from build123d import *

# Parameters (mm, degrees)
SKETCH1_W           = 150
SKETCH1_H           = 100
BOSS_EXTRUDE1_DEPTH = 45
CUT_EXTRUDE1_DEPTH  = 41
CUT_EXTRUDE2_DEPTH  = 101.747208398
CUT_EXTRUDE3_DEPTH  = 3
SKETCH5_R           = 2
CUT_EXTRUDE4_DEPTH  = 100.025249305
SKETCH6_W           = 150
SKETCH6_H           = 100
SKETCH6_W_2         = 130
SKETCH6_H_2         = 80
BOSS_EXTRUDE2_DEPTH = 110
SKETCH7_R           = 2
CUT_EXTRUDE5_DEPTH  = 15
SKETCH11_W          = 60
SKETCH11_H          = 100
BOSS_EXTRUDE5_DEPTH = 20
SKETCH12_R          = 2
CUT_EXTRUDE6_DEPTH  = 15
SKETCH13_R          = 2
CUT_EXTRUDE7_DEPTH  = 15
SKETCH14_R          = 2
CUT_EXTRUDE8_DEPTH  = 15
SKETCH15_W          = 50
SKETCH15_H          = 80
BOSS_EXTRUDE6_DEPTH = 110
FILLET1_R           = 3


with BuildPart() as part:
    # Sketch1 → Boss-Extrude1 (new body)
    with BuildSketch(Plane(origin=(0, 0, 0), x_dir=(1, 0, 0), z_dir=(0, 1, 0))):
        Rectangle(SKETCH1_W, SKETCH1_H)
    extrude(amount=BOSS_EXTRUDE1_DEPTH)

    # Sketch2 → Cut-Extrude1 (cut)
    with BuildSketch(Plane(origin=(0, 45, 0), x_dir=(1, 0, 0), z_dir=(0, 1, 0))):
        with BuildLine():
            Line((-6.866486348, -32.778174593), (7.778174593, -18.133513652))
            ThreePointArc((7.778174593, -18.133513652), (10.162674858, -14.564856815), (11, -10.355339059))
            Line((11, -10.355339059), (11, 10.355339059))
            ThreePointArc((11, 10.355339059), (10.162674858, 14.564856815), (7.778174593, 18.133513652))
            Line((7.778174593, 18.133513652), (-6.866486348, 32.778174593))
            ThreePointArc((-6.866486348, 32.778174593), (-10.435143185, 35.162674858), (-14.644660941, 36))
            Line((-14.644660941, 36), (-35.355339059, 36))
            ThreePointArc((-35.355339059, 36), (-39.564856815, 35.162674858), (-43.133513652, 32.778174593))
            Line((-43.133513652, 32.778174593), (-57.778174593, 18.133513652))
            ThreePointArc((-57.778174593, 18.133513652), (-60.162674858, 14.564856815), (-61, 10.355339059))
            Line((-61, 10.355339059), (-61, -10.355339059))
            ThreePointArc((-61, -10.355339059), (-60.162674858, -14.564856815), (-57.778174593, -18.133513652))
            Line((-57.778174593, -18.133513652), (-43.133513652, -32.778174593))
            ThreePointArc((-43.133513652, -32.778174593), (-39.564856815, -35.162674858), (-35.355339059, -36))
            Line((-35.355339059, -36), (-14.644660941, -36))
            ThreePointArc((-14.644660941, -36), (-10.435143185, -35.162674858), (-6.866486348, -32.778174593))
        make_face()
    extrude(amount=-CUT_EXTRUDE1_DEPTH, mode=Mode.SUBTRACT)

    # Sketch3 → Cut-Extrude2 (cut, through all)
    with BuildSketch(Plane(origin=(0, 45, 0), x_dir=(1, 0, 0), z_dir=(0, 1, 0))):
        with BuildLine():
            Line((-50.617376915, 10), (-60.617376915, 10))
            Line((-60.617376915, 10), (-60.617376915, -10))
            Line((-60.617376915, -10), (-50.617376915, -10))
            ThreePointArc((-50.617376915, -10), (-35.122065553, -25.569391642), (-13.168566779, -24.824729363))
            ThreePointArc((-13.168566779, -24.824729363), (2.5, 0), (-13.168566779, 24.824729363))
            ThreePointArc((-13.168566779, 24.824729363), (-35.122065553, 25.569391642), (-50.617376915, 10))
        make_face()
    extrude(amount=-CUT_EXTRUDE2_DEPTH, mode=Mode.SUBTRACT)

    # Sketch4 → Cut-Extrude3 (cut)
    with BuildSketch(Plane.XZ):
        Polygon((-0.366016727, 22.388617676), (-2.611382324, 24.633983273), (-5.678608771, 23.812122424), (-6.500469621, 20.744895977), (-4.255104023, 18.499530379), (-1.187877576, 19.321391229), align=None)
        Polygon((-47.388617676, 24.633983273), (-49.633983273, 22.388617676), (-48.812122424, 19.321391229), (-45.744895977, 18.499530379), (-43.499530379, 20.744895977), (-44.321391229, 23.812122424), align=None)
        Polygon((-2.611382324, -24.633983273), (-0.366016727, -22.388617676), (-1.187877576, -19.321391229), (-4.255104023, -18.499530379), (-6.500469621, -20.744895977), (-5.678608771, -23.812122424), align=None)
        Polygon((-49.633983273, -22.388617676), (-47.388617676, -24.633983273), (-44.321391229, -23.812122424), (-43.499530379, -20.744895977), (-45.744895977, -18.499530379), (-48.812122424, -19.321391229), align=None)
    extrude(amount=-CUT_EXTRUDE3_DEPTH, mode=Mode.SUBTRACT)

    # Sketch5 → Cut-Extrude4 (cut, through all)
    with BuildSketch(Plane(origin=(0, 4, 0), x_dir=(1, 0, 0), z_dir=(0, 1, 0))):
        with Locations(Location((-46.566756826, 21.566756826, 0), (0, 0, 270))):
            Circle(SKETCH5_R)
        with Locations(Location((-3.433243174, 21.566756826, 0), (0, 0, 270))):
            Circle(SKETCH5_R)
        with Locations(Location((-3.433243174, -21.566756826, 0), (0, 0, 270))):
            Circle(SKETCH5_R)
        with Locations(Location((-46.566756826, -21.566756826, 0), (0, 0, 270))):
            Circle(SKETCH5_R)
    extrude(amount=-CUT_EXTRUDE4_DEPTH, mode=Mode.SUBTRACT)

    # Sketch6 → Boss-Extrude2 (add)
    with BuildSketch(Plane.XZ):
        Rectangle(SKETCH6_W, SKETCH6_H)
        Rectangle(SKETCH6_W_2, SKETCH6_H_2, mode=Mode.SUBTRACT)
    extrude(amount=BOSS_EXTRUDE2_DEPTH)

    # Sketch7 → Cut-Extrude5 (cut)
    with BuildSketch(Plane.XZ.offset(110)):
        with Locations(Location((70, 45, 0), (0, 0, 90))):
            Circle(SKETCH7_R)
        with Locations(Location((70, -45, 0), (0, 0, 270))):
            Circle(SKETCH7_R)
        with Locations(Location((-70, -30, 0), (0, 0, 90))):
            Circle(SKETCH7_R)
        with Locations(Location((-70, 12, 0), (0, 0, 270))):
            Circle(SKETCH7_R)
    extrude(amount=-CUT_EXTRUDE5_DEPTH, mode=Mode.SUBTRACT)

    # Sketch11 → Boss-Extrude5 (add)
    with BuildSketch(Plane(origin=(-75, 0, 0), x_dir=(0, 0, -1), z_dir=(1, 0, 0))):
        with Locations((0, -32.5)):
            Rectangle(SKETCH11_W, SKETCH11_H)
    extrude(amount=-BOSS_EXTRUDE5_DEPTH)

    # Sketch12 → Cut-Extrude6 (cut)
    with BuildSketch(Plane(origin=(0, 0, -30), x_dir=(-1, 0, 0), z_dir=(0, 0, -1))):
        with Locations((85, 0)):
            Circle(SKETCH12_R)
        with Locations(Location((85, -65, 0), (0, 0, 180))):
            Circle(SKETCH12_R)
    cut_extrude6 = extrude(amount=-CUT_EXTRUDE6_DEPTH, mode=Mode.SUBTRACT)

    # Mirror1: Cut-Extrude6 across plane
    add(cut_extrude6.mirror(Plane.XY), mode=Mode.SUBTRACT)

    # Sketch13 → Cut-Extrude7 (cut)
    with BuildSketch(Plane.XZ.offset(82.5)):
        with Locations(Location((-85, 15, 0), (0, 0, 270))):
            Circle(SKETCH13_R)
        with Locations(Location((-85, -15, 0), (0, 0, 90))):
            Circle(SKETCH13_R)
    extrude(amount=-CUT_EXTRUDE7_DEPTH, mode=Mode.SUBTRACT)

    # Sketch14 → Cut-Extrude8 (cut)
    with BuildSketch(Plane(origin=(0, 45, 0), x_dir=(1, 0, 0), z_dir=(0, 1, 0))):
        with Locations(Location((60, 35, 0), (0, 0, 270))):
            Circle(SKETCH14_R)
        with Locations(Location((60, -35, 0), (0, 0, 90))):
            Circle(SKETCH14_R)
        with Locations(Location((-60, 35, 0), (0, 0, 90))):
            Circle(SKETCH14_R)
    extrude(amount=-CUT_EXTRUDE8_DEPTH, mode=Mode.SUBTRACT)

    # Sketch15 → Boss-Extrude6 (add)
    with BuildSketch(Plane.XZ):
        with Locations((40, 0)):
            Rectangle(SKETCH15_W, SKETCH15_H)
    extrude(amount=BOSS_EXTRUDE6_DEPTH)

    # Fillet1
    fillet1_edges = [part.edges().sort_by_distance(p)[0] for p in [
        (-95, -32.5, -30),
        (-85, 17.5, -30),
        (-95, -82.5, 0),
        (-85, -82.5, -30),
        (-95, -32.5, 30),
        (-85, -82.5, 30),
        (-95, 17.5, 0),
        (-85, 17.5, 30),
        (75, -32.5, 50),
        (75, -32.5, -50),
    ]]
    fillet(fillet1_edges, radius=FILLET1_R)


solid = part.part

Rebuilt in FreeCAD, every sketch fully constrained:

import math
import FreeCAD as App
import Part
import Sketcher

V = App.Vector
Q = App.Units.Quantity


def edges_at(feature, points):
    """Names of the edges that pass closest to the given points."""
    edges = feature.Shape.Edges
    near = lambda p: min(range(len(edges)), key=lambda i: edges[i].distToShape(Part.Vertex(*p))[0])
    return sorted({f"Edge{near(p) + 1}" for p in points})


def add_polygon(sketch, points):
    """Adds a closed chain of lines whose ends are joined by coincident constraints."""
    first, n = sketch.GeometryCount, len(points)
    for a, b in zip(points, points[1:] + points[:1]):
        sketch.addGeometry(Part.LineSegment(App.Vector(*a, 0), App.Vector(*b, 0)), False)
    for i in range(n):
        sketch.addConstraint(Sketcher.Constraint("Coincident", first + i, 2, first + (i + 1) % n, 1))

doc = App.newDocument("Part")
params = doc.addObject("Spreadsheet::Sheet", "Params")
for row, (alias, value) in enumerate([
    ("sketch1_width", "150 mm"),
    ("sketch1_height", "100 mm"),
    ("pad1_length", "45 mm"),
    ("sketch2_radius", "11 mm"),
    ("pocket1_length", "41 mm"),
    ("sketch3_radius", "27.5 mm"),
    ("sketch3_width", "10 mm"),
    ("sketch3_height", "20 mm"),
    ("pocket3_length", "3 mm"),
    ("sketch5_diameter", "4 mm"),
    ("sketch6_width", "150 mm"),
    ("sketch6_width2", "130 mm"),
    ("sketch6_height", "100 mm"),
    ("sketch6_height2", "80 mm"),
    ("pad2_length", "110 mm"),
    ("sketch7_diameter", "4 mm"),
    ("pocket5_length", "15 mm"),
    ("sketch8_width", "100 mm"),
    ("sketch8_height", "60 mm"),
    ("pad3_length", "20 mm"),
    ("sketch9_diameter", "4 mm"),
    ("pocket6_length", "15 mm"),
    ("sketch10_diameter", "4 mm"),
    ("pocket7_length", "15 mm"),
    ("sketch11_diameter", "4 mm"),
    ("pocket8_length", "15 mm"),
    ("sketch12_width", "50 mm"),
    ("sketch12_height", "80 mm"),
    ("pad4_length", "110 mm"),
    ("fillet_radius", "3 mm"),
], start=1):
    params.set(f"A{row}", alias)
    params.set(f"B{row}", "=" + value)
    params.setAlias(f"B{row}", alias)

body = doc.addObject("PartDesign::Body", "Body")

sketch1 = body.newObject("Sketcher::SketchObject", "Sketch")
sketch1.AttachmentSupport = (doc.getObject("XZ_Plane"), [""])
sketch1.MapMode = "FlatFace"
add_polygon(sketch1, [(-75, -50), (-75, 50), (75, 50), (75, -50)])
sketch1.addConstraint([
    Sketcher.Constraint("Vertical", 0),
    Sketcher.Constraint("Horizontal", 1),
    Sketcher.Constraint("Vertical", 2),
    Sketcher.Constraint("Horizontal", 3),
    Sketcher.Constraint("Symmetric", 0, 2, 2, 2, -1, 1),
    Sketcher.Constraint("DistanceX", 1, 1, 1, 2, 150.0),
    Sketcher.Constraint("DistanceY", 0, 1, 0, 2, 100.0),
])
sketch1.setExpression("Constraints[9]", "Params.sketch1_width")
sketch1.setExpression("Constraints[10]", "Params.sketch1_height")
pad1 = body.newObject("PartDesign::Pad", "Pad")
pad1.Profile = sketch1
pad1.setExpression("Length", "Params.pad1_length")
pad1.Reversed = True

sketch2 = body.newObject("Sketcher::SketchObject", "Sketch001")
sketch2.AttachmentSupport = (doc.getObject("XZ_Plane"), [""])
sketch2.MapMode = "FlatFace"
sketch2.AttachmentOffset = App.Placement(V(0, 0, -45), App.Rotation())
sketch2.addGeometry([
    Part.LineSegment(V(-7, 33, 0), V(8, 18, 0)),
    Part.ArcOfCircle(Part.Circle(V(0, 10, 0), V(0, 0, 1), 11), math.radians(0), math.radians(45)),
    Part.LineSegment(V(11, 10, 0), V(11, -10, 0)),
    Part.ArcOfCircle(Part.Circle(V(0, -10, 0), V(0, 0, 1), 11), math.radians(-45), math.radians(0)),
    Part.LineSegment(V(8, -18, 0), V(-7, -33, 0)),
    Part.ArcOfCircle(Part.Circle(V(-15, -25, 0), V(0, 0, 1), 11), math.radians(-90), math.radians(-45)),
    Part.LineSegment(V(-15, -36, 0), V(-35, -36, 0)),
    Part.ArcOfCircle(Part.Circle(V(-35, -25, 0), V(0, 0, 1), 11), math.radians(-135), math.radians(-90)),
    Part.LineSegment(V(-43, -33, 0), V(-58, -18, 0)),
    Part.ArcOfCircle(Part.Circle(V(-50, -10, 0), V(0, 0, 1), 11), math.radians(180), math.radians(225)),
    Part.LineSegment(V(-61, -10, 0), V(-61, 10, 0)),
    Part.ArcOfCircle(Part.Circle(V(-50, 10, 0), V(0, 0, 1), 11), math.radians(135), math.radians(180)),
    Part.LineSegment(V(-58, 18, 0), V(-43, 33, 0)),
    Part.ArcOfCircle(Part.Circle(V(-35, 25, 0), V(0, 0, 1), 11), math.radians(90), math.radians(135)),
    Part.LineSegment(V(-35, 36, 0), V(-15, 36, 0)),
    Part.ArcOfCircle(Part.Circle(V(-15, 25, 0), V(0, 0, 1), 11), math.radians(45), math.radians(90)),
], False)
sketch2.addConstraint([
    Sketcher.Constraint("Tangent", 0, 2, 1, 2),
    Sketcher.Constraint("Tangent", 1, 1, 2, 1),
    Sketcher.Constraint("Tangent", 2, 2, 3, 2),
    Sketcher.Constraint("Tangent", 3, 1, 4, 1),
    Sketcher.Constraint("Tangent", 4, 2, 5, 2),
    Sketcher.Constraint("Tangent", 5, 1, 6, 1),
    Sketcher.Constraint("Tangent", 6, 2, 7, 2),
    Sketcher.Constraint("Tangent", 7, 1, 8, 1),
    Sketcher.Constraint("Tangent", 8, 2, 9, 2),
    Sketcher.Constraint("Tangent", 9, 1, 10, 1),
    Sketcher.Constraint("Tangent", 10, 2, 11, 2),
    Sketcher.Constraint("Tangent", 11, 1, 12, 1),
    Sketcher.Constraint("Tangent", 12, 2, 13, 2),
    Sketcher.Constraint("Tangent", 13, 1, 14, 1),
    Sketcher.Constraint("Tangent", 14, 2, 15, 2),
    Sketcher.Constraint("Tangent", 15, 1, 0, 1),
    Sketcher.Constraint("Vertical", 2),
    Sketcher.Constraint("Horizontal", 6),
    Sketcher.Constraint("Vertical", 10),
    Sketcher.Constraint("Horizontal", 14),
    Sketcher.Constraint("Equal", 1, 3),
    Sketcher.Constraint("Equal", 3, 5),
    Sketcher.Constraint("Equal", 5, 7),
    Sketcher.Constraint("Equal", 7, 9),
    Sketcher.Constraint("Equal", 9, 11),
    Sketcher.Constraint("Equal", 11, 13),
    Sketcher.Constraint("Equal", 13, 15),
    Sketcher.Constraint("Symmetric", 1, 3, 3, 3, -1, 1),
    Sketcher.Constraint("Symmetric", 7, 3, 13, 3, -1),
    Sketcher.Constraint("Perpendicular", 0, 4),
    Sketcher.Constraint("Perpendicular", 4, 8),
    Sketcher.Constraint("Perpendicular", 8, 12),
    Sketcher.Constraint("Horizontal", 3, 3, 9, 3),
    Sketcher.Constraint("Horizontal", 1, 3, 11, 3),
    Sketcher.Constraint("Equal", 14, 2),
    Sketcher.Constraint("Radius", 1, 11.0),
    Sketcher.Constraint("DistanceY", 5, 3, -1, 1, 25.0),
    Sketcher.Constraint("DistanceX", 6, 2, 6, 1, 20.710678),
])
sketch2.setExpression("Constraints[35]", "Params.sketch2_radius")
pocket1 = body.newObject("PartDesign::Pocket", "Pocket")
pocket1.Profile = sketch2
pocket1.setExpression("Length", "Params.pocket1_length")
pocket1.Reversed = True

sketch3 = body.newObject("Sketcher::SketchObject", "Sketch002")
sketch3.AttachmentSupport = (doc.getObject("XZ_Plane"), [""])
sketch3.MapMode = "FlatFace"
sketch3.AttachmentOffset = App.Placement(V(0, 0, -45), App.Rotation())
sketch3.addGeometry([
    Part.LineSegment(V(-51, -10, 0), V(-61, -10, 0)),
    Part.LineSegment(V(-61, -10, 0), V(-61, 10, 0)),
    Part.LineSegment(V(-61, 10, 0), V(-51, 10, 0)),
    Part.ArcOfCircle(Part.Circle(V(-25, 0, 0), V(0, 0, 1), 28), math.radians(65), math.radians(159)),
    Part.ArcOfCircle(Part.Circle(V(-25, 0, 0), V(0, 0, 1), 28), math.radians(-65), math.radians(65)),
    Part.ArcOfCircle(Part.Circle(V(-25, 0, 0), V(0, 0, 1), 28), math.radians(-159), math.radians(-65)),
], False)
sketch3.addConstraint([
    Sketcher.Constraint("Coincident", 0, 2, 1, 1),
    Sketcher.Constraint("Coincident", 1, 2, 2, 1),
    Sketcher.Constraint("Coincident", 2, 2, 3, 2),
    Sketcher.Constraint("Tangent", 3, 1, 4, 2),
    Sketcher.Constraint("Tangent", 4, 1, 5, 2),
    Sketcher.Constraint("Coincident", 5, 1, 0, 1),
    Sketcher.Constraint("Horizontal", 0),
    Sketcher.Constraint("Vertical", 1),
    Sketcher.Constraint("Horizontal", 2),
    Sketcher.Constraint("Coincident", 5, 3, 3, 3),
    Sketcher.Constraint("Symmetric", 3, 1, 4, 1, -1),
    Sketcher.Constraint("Vertical", 2, 2, 5, 1),
    Sketcher.Constraint("Radius", 3, 27.5),
    Sketcher.Constraint("DistanceX", 0, 2, 0, 1, 10.0),
    Sketcher.Constraint("DistanceY", 1, 1, 1, 2, 20.0),
    Sketcher.Constraint("DistanceX", 3, 3, -1, 1, 25.0),
    Sketcher.Constraint("DistanceY", -1, 1, 3, 1, 24.824729),
])
sketch3.setExpression("Constraints[12]", "Params.sketch3_radius")
sketch3.setExpression("Constraints[13]", "Params.sketch3_width")
sketch3.setExpression("Constraints[14]", "Params.sketch3_height")
pocket2 = body.newObject("PartDesign::Pocket", "Pocket001")
pocket2.Profile = sketch3
pocket2.Type = "ThroughAll"
pocket2.Reversed = True

sketch4 = body.newObject("Sketcher::SketchObject", "Sketch003")
sketch4.AttachmentSupport = (doc.getObject("XZ_Plane"), [""])
sketch4.MapMode = "FlatFace"
add_polygon(sketch4, [(-0.4, 22.4), (-2.6, 24.6), (-5.7, 23.8), (-6.5, 20.7), (-4.3, 18.5), (-1.2, 19.3)])
add_polygon(sketch4, [(-47.4, 24.6), (-49.6, 22.4), (-48.8, 19.3), (-45.7, 18.5), (-43.5, 20.7), (-44.3, 23.8)])
add_polygon(sketch4, [(-2.6, -24.6), (-0.4, -22.4), (-1.2, -19.3), (-4.3, -18.5), (-6.5, -20.7), (-5.7, -23.8)])
add_polygon(sketch4, [(-49.6, -22.4), (-47.4, -24.6), (-44.3, -23.8), (-43.5, -20.7), (-45.7, -18.5), (-48.8, -19.3)])
sketch4.addConstraint([
    Sketcher.Constraint("Symmetric", 5, 2, 12, 2, -1),
    Sketcher.Constraint("Symmetric", 4, 2, 13, 2, -1),
    Sketcher.Constraint("Symmetric", 3, 2, 14, 2, -1),
    Sketcher.Constraint("Symmetric", 2, 2, 15, 2, -1),
    Sketcher.Constraint("Symmetric", 1, 2, 16, 2, -1),
    Sketcher.Constraint("Symmetric", 0, 2, 17, 2, -1),
    Sketcher.Constraint("Symmetric", 11, 2, 18, 2, -1),
    Sketcher.Constraint("Symmetric", 10, 2, 19, 2, -1),
    Sketcher.Constraint("Symmetric", 9, 2, 20, 2, -1),
    Sketcher.Constraint("Symmetric", 8, 2, 21, 2, -1),
    Sketcher.Constraint("Symmetric", 7, 2, 22, 2, -1),
    Sketcher.Constraint("Symmetric", 6, 2, 23, 2, -1),
    Sketcher.Constraint("Parallel", 0, 3),
    Sketcher.Constraint("Parallel", 1, 4),
    Sketcher.Constraint("Parallel", 2, 5),
    Sketcher.Constraint("Perpendicular", 3, 6),
    Sketcher.Constraint("Perpendicular", 4, 7),
    Sketcher.Constraint("Perpendicular", 5, 8),
    Sketcher.Constraint("Parallel", 6, 9),
    Sketcher.Constraint("Parallel", 7, 10),
    Sketcher.Constraint("Parallel", 8, 11),
    Sketcher.Constraint("Parallel", 9, 12),
    Sketcher.Constraint("Parallel", 10, 13),
    Sketcher.Constraint("Horizontal", 5, 2, 6, 2),
    Sketcher.Constraint("Horizontal", 4, 2, 7, 2),
    Sketcher.Constraint("Horizontal", 3, 2, 8, 2),
    Sketcher.Constraint("Horizontal", 2, 2, 9, 2),
    Sketcher.Constraint("Horizontal", 1, 2, 10, 2),
    Sketcher.Constraint("Equal", 0, 1),
    Sketcher.Constraint("Equal", 1, 2),
    Sketcher.Constraint("Equal", 2, 3),
    Sketcher.Constraint("Angle", 1, Q("-165 deg")),
    Sketcher.Constraint("DistanceX", 6, 2, 0, 2, 47.022601),
    Sketcher.Constraint("DistanceX", 1, 2, -1, 1, 5.678609),
    Sketcher.Constraint("DistanceX", 2, 2, -1, 1, 6.50047),
    Sketcher.Constraint("DistanceY", -1, 1, 3, 2, 18.49953),
])
pocket3 = body.newObject("PartDesign::Pocket", "Pocket002")
pocket3.Profile = sketch4
pocket3.setExpression("Length", "Params.pocket3_length")

sketch5 = body.newObject("Sketcher::SketchObject", "Sketch004")
sketch5.AttachmentSupport = (doc.getObject("XZ_Plane"), [""])
sketch5.MapMode = "FlatFace"
sketch5.AttachmentOffset = App.Placement(V(0, 0, -4), App.Rotation())
sketch5.addGeometry([
    Part.Circle(V(-46.6, -21.6, 0), V(0, 0, 1), 2),
    Part.Circle(V(-3.4, -21.6, 0), V(0, 0, 1), 2),
    Part.Circle(V(-3.4, 21.6, 0), V(0, 0, 1), 2),
    Part.Circle(V(-46.6, 21.6, 0), V(0, 0, 1), 2),
], False)
sketch5.addConstraint([
    Sketcher.Constraint("Equal", 0, 1),
    Sketcher.Constraint("Equal", 1, 2),
    Sketcher.Constraint("Equal", 2, 3),
    Sketcher.Constraint("Symmetric", 1, 3, 2, 3, -1),
    Sketcher.Constraint("Symmetric", 0, 3, 3, 3, -1),
    Sketcher.Constraint("Horizontal", 0, 3, 1, 3),
    Sketcher.Constraint("Diameter", 0, 4.0),
    Sketcher.Constraint("DistanceX", 0, 3, -1, 1, 46.566757),
    Sketcher.Constraint("DistanceY", 0, 3, -1, 1, 21.566757),
    Sketcher.Constraint("DistanceX", 1, 3, -1, 1, 3.433243),
])
sketch5.setExpression("Constraints[6]", "Params.sketch5_diameter")
pocket4 = body.newObject("PartDesign::Pocket", "Pocket003")
pocket4.Profile = sketch5
pocket4.Type = "ThroughAll"
pocket4.Reversed = True

sketch6 = body.newObject("Sketcher::SketchObject", "Sketch005")
sketch6.AttachmentSupport = (doc.getObject("XZ_Plane"), [""])
sketch6.MapMode = "FlatFace"
add_polygon(sketch6, [(-75, 50), (-75, -50), (75, -50), (75, 50)])
add_polygon(sketch6, [(65, -40), (-65, -40), (-65, 40), (65, 40)])
sketch6.addConstraint([
    Sketcher.Constraint("Vertical", 0),
    Sketcher.Constraint("Horizontal", 1),
    Sketcher.Constraint("Vertical", 2),
    Sketcher.Constraint("Horizontal", 3),
    Sketcher.Constraint("Horizontal", 4),
    Sketcher.Constraint("Vertical", 5),
    Sketcher.Constraint("Horizontal", 6),
    Sketcher.Constraint("Vertical", 7),
    Sketcher.Constraint("Symmetric", 0, 2, 2, 2, -1, 1),
    Sketcher.Constraint("Symmetric", 4, 2, 6, 2, -1, 1),
    Sketcher.Constraint("DistanceX", 1, 1, 1, 2, 150.0),
    Sketcher.Constraint("DistanceX", 4, 2, 4, 1, 130.0),
    Sketcher.Constraint("DistanceY", 0, 2, 0, 1, 100.0),
    Sketcher.Constraint("DistanceY", 5, 1, 5, 2, 80.0),
])
sketch6.setExpression("Constraints[18]", "Params.sketch6_width")
sketch6.setExpression("Constraints[19]", "Params.sketch6_width2")
sketch6.setExpression("Constraints[20]", "Params.sketch6_height")
sketch6.setExpression("Constraints[21]", "Params.sketch6_height2")
pad2 = body.newObject("PartDesign::Pad", "Pad001")
pad2.Profile = sketch6
pad2.setExpression("Length", "Params.pad2_length")

sketch7 = body.newObject("Sketcher::SketchObject", "Sketch006")
sketch7.AttachmentSupport = (doc.getObject("XZ_Plane"), [""])
sketch7.MapMode = "FlatFace"
sketch7.AttachmentOffset = App.Placement(V(0, 0, 110), App.Rotation())
sketch7.addGeometry([
    Part.Circle(V(70, 45, 0), V(0, 0, 1), 2),
    Part.Circle(V(70, -45, 0), V(0, 0, 1), 2),
    Part.Circle(V(-70, -30, 0), V(0, 0, 1), 2),
    Part.Circle(V(-70, 12, 0), V(0, 0, 1), 2),
], False)
sketch7.addConstraint([
    Sketcher.Constraint("Equal", 0, 1),
    Sketcher.Constraint("Equal", 1, 2),
    Sketcher.Constraint("Equal", 2, 3),
    Sketcher.Constraint("Symmetric", 0, 3, 1, 3, -1),
    Sketcher.Constraint("Vertical", 2, 3, 3, 3),
    Sketcher.Constraint("Diameter", 0, 4.0),
    Sketcher.Constraint("DistanceX", -1, 1, 0, 3, 70.0),
    Sketcher.Constraint("DistanceY", -1, 1, 0, 3, 45.0),
    Sketcher.Constraint("DistanceX", 2, 3, -1, 1, 70.0),
    Sketcher.Constraint("DistanceY", 2, 3, -1, 1, 30.0),
    Sketcher.Constraint("DistanceY", -1, 1, 3, 3, 12.0),
])
sketch7.setExpression("Constraints[5]", "Params.sketch7_diameter")
pocket5 = body.newObject("PartDesign::Pocket", "Pocket004")
pocket5.Profile = sketch7
pocket5.setExpression("Length", "Params.pocket5_length")

sketch8 = body.newObject("Sketcher::SketchObject", "Sketch007")
sketch8.AttachmentSupport = (doc.getObject("YZ_Plane"), [""])
sketch8.MapMode = "FlatFace"
sketch8.AttachmentOffset = App.Placement(V(0, 0, -75), App.Rotation())
add_polygon(sketch8, [(18, 30), (-82, 30), (-82, -30), (18, -30)])
sketch8.addConstraint([
    Sketcher.Constraint("Horizontal", 0),
    Sketcher.Constraint("Vertical", 1),
    Sketcher.Constraint("Horizontal", 2),
    Sketcher.Constraint("Vertical", 3),
    Sketcher.Constraint("DistanceX", 0, 2, 0, 1, 100.0),
    Sketcher.Constraint("DistanceY", 1, 2, 1, 1, 60.0),
    Sketcher.Constraint("DistanceY", -1, 1, 0, 2, 30.0),
    Sketcher.Constraint("DistanceX", 0, 2, -1, 1, 82.5),
])
sketch8.setExpression("Constraints[8]", "Params.sketch8_width")
sketch8.setExpression("Constraints[9]", "Params.sketch8_height")
pad3 = body.newObject("PartDesign::Pad", "Pad002")
pad3.Profile = sketch8
pad3.setExpression("Length", "Params.pad3_length")
pad3.Reversed = True

sketch9 = body.newObject("Sketcher::SketchObject", "Sketch008")
sketch9.AttachmentSupport = (doc.getObject("XY_Plane"), [""])
sketch9.MapMode = "FlatFace"
sketch9.AttachmentOffset = App.Placement(V(0, 0, -30), App.Rotation())
sketch9.addGeometry([
    Part.Circle(V(-85, 0, 0), V(0, 0, 1), 2),
    Part.Circle(V(-85, -65, 0), V(0, 0, 1), 2),
], False)
sketch9.addConstraint([
    Sketcher.Constraint("Equal", 0, 1),
    Sketcher.Constraint("PointOnObject", 0, 3, -1),
    Sketcher.Constraint("Vertical", 0, 3, 1, 3),
    Sketcher.Constraint("Diameter", 0, 4.0),
    Sketcher.Constraint("DistanceX", 0, 3, -1, 1, 85.0),
    Sketcher.Constraint("DistanceY", 1, 3, -1, 1, 65.0),
])
sketch9.setExpression("Constraints[3]", "Params.sketch9_diameter")
pocket6 = body.newObject("PartDesign::Pocket", "Pocket005")
pocket6.Profile = sketch9
pocket6.setExpression("Length", "Params.pocket6_length")
pocket6.Reversed = True
doc.recompute()

mirrored = body.newObject("PartDesign::Mirrored", "Mirrored")
mirrored.Originals = [pocket6]
mirrored.MirrorPlane = (doc.getObject("XY_Plane"), [""])
body.Tip = mirrored

sketch10 = body.newObject("Sketcher::SketchObject", "Sketch009")
sketch10.AttachmentSupport = (doc.getObject("XZ_Plane"), [""])
sketch10.MapMode = "FlatFace"
sketch10.AttachmentOffset = App.Placement(V(0, 0, 82.5), App.Rotation())
sketch10.addGeometry([
    Part.Circle(V(-85, 15, 0), V(0, 0, 1), 2),
    Part.Circle(V(-85, -15, 0), V(0, 0, 1), 2),
], False)
sketch10.addConstraint([
    Sketcher.Constraint("Equal", 0, 1),
    Sketcher.Constraint("Symmetric", 0, 3, 1, 3, -1),
    Sketcher.Constraint("Diameter", 0, 4.0),
    Sketcher.Constraint("DistanceX", 0, 3, -1, 1, 85.0),
    Sketcher.Constraint("DistanceY", -1, 1, 0, 3, 15.0),
])
sketch10.setExpression("Constraints[2]", "Params.sketch10_diameter")
pocket7 = body.newObject("PartDesign::Pocket", "Pocket006")
pocket7.Profile = sketch10
pocket7.setExpression("Length", "Params.pocket7_length")

sketch11 = body.newObject("Sketcher::SketchObject", "Sketch010")
sketch11.AttachmentSupport = (doc.getObject("XZ_Plane"), [""])
sketch11.MapMode = "FlatFace"
sketch11.AttachmentOffset = App.Placement(V(0, 0, -45), App.Rotation())
sketch11.addGeometry([
    Part.Circle(V(60, -35, 0), V(0, 0, 1), 2),
    Part.Circle(V(60, 35, 0), V(0, 0, 1), 2),
    Part.Circle(V(-60, -35, 0), V(0, 0, 1), 2),
], False)
sketch11.addConstraint([
    Sketcher.Constraint("Equal", 0, 1),
    Sketcher.Constraint("Equal", 1, 2),
    Sketcher.Constraint("Symmetric", 1, 3, 2, 3, -1, 1),
    Sketcher.Constraint("Symmetric", 0, 3, 2, 3, -2),
    Sketcher.Constraint("Diameter", 0, 4.0),
    Sketcher.Constraint("DistanceX", -1, 1, 0, 3, 60.0),
    Sketcher.Constraint("DistanceY", 0, 3, -1, 1, 35.0),
])
sketch11.setExpression("Constraints[4]", "Params.sketch11_diameter")
pocket8 = body.newObject("PartDesign::Pocket", "Pocket007")
pocket8.Profile = sketch11
pocket8.setExpression("Length", "Params.pocket8_length")
pocket8.Reversed = True

sketch12 = body.newObject("Sketcher::SketchObject", "Sketch011")
sketch12.AttachmentSupport = (doc.getObject("XZ_Plane"), [""])
sketch12.MapMode = "FlatFace"
add_polygon(sketch12, [(15, 40), (15, -40), (65, -40), (65, 40)])
sketch12.addConstraint([
    Sketcher.Constraint("Vertical", 0),
    Sketcher.Constraint("Horizontal", 1),
    Sketcher.Constraint("Vertical", 2),
    Sketcher.Constraint("Horizontal", 3),
    Sketcher.Constraint("DistanceX", 1, 1, 1, 2, 50.0),
    Sketcher.Constraint("DistanceY", 0, 2, 0, 1, 80.0),
    Sketcher.Constraint("DistanceX", -1, 1, 0, 2, 15.0),
    Sketcher.Constraint("DistanceY", 0, 2, -1, 1, 40.0),
])
sketch12.setExpression("Constraints[8]", "Params.sketch12_width")
sketch12.setExpression("Constraints[9]", "Params.sketch12_height")
pad4 = body.newObject("PartDesign::Pad", "Pad003")
pad4.Profile = sketch12
pad4.setExpression("Length", "Params.pad4_length")
doc.recompute()

fillet = body.newObject("PartDesign::Fillet", "Fillet")
fillet.Base = (pad4, edges_at(pad4, [
    (-95, -32.5, -30),
    (-85, 17.5, -30),
    (-95, -82.5, 0),
    (-85, -82.5, -30),
    (-95, -32.5, 30),
    (-85, -82.5, 30),
    (-95, 17.5, 0),
    (-85, 17.5, 30),
    (75, -32.5, 50),
    (75, -32.5, -50),
]))
fillet.setExpression("Radius", "Params.fillet_radius")

doc.recompute()
